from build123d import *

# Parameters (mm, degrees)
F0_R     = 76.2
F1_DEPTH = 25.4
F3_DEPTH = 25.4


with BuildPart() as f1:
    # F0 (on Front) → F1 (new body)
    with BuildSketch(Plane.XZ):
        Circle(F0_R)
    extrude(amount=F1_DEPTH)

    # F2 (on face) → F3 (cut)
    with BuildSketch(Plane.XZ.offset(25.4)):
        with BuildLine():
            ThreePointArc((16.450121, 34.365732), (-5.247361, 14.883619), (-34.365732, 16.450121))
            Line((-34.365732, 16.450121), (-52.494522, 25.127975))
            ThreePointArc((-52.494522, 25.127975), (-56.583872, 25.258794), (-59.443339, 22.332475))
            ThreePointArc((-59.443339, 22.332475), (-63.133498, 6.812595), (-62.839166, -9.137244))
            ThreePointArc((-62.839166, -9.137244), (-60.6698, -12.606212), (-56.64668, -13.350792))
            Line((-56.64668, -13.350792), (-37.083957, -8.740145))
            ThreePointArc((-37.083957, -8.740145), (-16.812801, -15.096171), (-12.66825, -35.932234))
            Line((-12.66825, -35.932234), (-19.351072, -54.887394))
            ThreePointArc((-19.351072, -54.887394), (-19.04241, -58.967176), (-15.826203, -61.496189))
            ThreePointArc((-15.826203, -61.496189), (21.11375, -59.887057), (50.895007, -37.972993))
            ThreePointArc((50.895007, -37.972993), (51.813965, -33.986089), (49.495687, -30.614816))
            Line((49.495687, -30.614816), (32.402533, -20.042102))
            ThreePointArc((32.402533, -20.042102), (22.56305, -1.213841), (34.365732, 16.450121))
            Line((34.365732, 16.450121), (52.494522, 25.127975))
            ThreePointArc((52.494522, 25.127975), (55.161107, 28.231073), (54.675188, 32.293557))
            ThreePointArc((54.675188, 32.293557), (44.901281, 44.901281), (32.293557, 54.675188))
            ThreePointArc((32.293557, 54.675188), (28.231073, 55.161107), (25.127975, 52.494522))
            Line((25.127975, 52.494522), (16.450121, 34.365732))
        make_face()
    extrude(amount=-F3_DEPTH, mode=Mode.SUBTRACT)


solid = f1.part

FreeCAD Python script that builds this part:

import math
import FreeCAD as App
import Part
import Sketcher
from FreeCAD import Vector
Q = App.Units.Quantity

doc = App.newDocument("Part")
body = doc.addObject("PartDesign::Body", "Body")

# Sketch on XZ plane
sketch1 = doc.addObject("Sketcher::SketchObject", "Sketch")
body.addObject(sketch1)
sketch1.AttachmentSupport = (doc.XZ_Plane, [""])
sketch1.MapMode = "FlatFace"
sketch1.addGeometry(Part.Circle(Vector(0, 0, 0), Vector(0, 0, 1), 76), False)
sketch1.addConstraint([
    Sketcher.Constraint("Coincident", 0, 3, -1, 1),
    Sketcher.Constraint("Diameter", 0, Q("6 in")),
])
pad1 = doc.addObject("PartDesign::Pad", "Pad")
body.addObject(pad1)
pad1.Profile = sketch1
pad1.Length = Q("1 in")

# Sketch on XZ plane
sketch2 = doc.addObject("Sketcher::SketchObject", "Sketch001")
body.addObject(sketch2)
sketch2.AttachmentSupport = (doc.XZ_Plane, [""])
sketch2.MapMode = "FlatFace"
sketch2.AttachmentOffset = App.Placement(Vector(0, 0, 1 * 25.4), App.Rotation())
sketch2.addGeometry([
    Part.ArcOfCircle(Part.Circle(Vector(-18, 51, 0), Vector(0, 0, 1), 38), math.radians(-116), math.radians(-26)),  # 0
    Part.LineSegment(Vector(-34, 16, 0), Vector(-52, 25, 0)),  # 1
    Part.ArcOfCircle(Part.Circle(Vector(-55, 21, 0), Vector(0, 0, 1), 5), math.radians(64), math.radians(159)),  # 2
    Part.ArcOfCircle(Part.Circle(Vector(0, 0, 0), Vector(0, 0, 1), 63), math.radians(159), math.radians(188)),  # 3
    Part.ArcOfCircle(Part.Circle(Vector(-58, -8, 0), Vector(0, 0, 1), 5), math.radians(-172), math.radians(-77)),  # 4
    Part.LineSegment(Vector(-57, -13, 0), Vector(-37, -9, 0)),  # 5
    Part.ArcOfCircle(Part.Circle(Vector(-32, -29, 0), Vector(0, 0, 1), 21), math.radians(-19), math.radians(103)),  # 6
    Part.LineSegment(Vector(-13, -36, 0), Vector(-19, -55, 0)),  # 7
    Part.ArcOfCircle(Part.Circle(Vector(-15, -57, 0), Vector(0, 0, 1), 5), math.radians(161), math.radians(256)),  # 8
    Part.ArcOfCircle(Part.Circle(Vector(0, 0, 0), Vector(0, 0, 1), 63), math.radians(-104), math.radians(-37)),  # 9
    Part.ArcOfCircle(Part.Circle(Vector(47, -35, 0), Vector(0, 0, 1), 5), math.radians(-37), math.radians(58)),  # 10
    Part.LineSegment(Vector(49, -31, 0), Vector(32, -20, 0)),  # 11
    Part.ArcOfCircle(Part.Circle(Vector(43, -2, 0), Vector(0, 0, 1), 21), math.radians(116), math.radians(238)),  # 12
    Part.LineSegment(Vector(34, 16, 0), Vector(52, 25, 0)),  # 13
    Part.ArcOfCircle(Part.Circle(Vector(50, 30, 0), Vector(0, 0, 1), 5), math.radians(-64), math.radians(31)),  # 14
    Part.ArcOfCircle(Part.Circle(Vector(0, 0, 0), Vector(0, 0, 1), 63), math.radians(31), math.radians(59)),  # 15
    Part.ArcOfCircle(Part.Circle(Vector(30, 50, 0), Vector(0, 0, 1), 5), math.radians(59), math.radians(154)),  # 16
    Part.LineSegment(Vector(25, 52, 0), Vector(16, 34, 0)),  # 17
], False)
sketch2.addConstraint([
    Sketcher.Constraint("Tangent", 0, 1, 1, 1),
    Sketcher.Constraint("Tangent", 1, 2, 2, 1),
    Sketcher.Constraint("Tangent", 2, 2, 3, 1),
    Sketcher.Constraint("Tangent", 3, 2, 4, 1),
    Sketcher.Constraint("Tangent", 4, 2, 5, 1),
    Sketcher.Constraint("Tangent", 5, 2, 6, 2),
    Sketcher.Constraint("Tangent", 6, 1, 7, 1),
    Sketcher.Constraint("Tangent", 7, 2, 8, 1),
    Sketcher.Constraint("Tangent", 8, 2, 9, 1),
    Sketcher.Constraint("Tangent", 9, 2, 10, 1),
    Sketcher.Constraint("Tangent", 10, 2, 11, 1),
    Sketcher.Constraint("Tangent", 11, 2, 12, 2),
    Sketcher.Constraint("Tangent", 12, 1, 13, 1),
    Sketcher.Constraint("Tangent", 13, 2, 14, 1),
    Sketcher.Constraint("Tangent", 14, 2, 15, 1),
    Sketcher.Constraint("Tangent", 15, 2, 16, 1),
    Sketcher.Constraint("Tangent", 16, 2, 17, 1),
    Sketcher.Constraint("Tangent", 17, 2, 0, 2),
    Sketcher.Constraint("Coincident", 3, 3, -1, 1),
    Sketcher.Constraint("Coincident", 9, 3, -1, 1),
    Sketcher.Constraint("Equal", 2, 4),
    Sketcher.Constraint("Equal", 4, 8),
    Sketcher.Constraint("Equal", 3, 9),
    Sketcher.Constraint("Equal", 8, 10),
    Sketcher.Constraint("Equal", 6, 12),
    Sketcher.Constraint("Equal", 10, 14),
    Sketcher.Constraint("Equal", 14, 16),
    Sketcher.Constraint("Symmetric", 0, 1, 12, 1, -2),
    Sketcher.Constraint("Symmetric", 1, 2, 13, 2, -2),
    Sketcher.Constraint("Perpendicular", 1, 17),
    Sketcher.Constraint("Equal", 1, 5),
    Sketcher.Constraint("Equal", 5, 7),
    Sketcher.Constraint("Equal", 7, 11),
    Sketcher.Constraint("Equal", 13, 17),
    Sketcher.Constraint("Radius", 0, Q("1.5 in")),
    Sketcher.Constraint("Radius", 2, Q("0.2 in")),
    Sketcher.Constraint("Radius", 3, Q("2.4999998 in")),
    Sketcher.Constraint("Radius", 6, 20.823571),
    Sketcher.Constraint("DistanceY", 9, 2, 15, 3, Q("1.4950002 in")),
    Sketcher.Constraint("DistanceY", 5, 2, -1, 1, Q("0.3441002 in")),
    Sketcher.Constraint("DistanceY", -1, 1, 14, 2, Q("1.2713999 in")),
    Sketcher.Constraint("DistanceX", -1, 1, 15, 2, Q("1.2713999 in")),
    Sketcher.Constraint("Radius", 15, 63.499985),
    Sketcher.Constraint("DistanceY", 8, 3, 7, 2, Q("0.0665 in")),
])
pocket1 = doc.addObject("PartDesign::Pocket", "Pocket")
body.addObject(pocket1)
pocket1.Profile = sketch2
pocket1.Length = Q("1 in")

doc.recompute()
